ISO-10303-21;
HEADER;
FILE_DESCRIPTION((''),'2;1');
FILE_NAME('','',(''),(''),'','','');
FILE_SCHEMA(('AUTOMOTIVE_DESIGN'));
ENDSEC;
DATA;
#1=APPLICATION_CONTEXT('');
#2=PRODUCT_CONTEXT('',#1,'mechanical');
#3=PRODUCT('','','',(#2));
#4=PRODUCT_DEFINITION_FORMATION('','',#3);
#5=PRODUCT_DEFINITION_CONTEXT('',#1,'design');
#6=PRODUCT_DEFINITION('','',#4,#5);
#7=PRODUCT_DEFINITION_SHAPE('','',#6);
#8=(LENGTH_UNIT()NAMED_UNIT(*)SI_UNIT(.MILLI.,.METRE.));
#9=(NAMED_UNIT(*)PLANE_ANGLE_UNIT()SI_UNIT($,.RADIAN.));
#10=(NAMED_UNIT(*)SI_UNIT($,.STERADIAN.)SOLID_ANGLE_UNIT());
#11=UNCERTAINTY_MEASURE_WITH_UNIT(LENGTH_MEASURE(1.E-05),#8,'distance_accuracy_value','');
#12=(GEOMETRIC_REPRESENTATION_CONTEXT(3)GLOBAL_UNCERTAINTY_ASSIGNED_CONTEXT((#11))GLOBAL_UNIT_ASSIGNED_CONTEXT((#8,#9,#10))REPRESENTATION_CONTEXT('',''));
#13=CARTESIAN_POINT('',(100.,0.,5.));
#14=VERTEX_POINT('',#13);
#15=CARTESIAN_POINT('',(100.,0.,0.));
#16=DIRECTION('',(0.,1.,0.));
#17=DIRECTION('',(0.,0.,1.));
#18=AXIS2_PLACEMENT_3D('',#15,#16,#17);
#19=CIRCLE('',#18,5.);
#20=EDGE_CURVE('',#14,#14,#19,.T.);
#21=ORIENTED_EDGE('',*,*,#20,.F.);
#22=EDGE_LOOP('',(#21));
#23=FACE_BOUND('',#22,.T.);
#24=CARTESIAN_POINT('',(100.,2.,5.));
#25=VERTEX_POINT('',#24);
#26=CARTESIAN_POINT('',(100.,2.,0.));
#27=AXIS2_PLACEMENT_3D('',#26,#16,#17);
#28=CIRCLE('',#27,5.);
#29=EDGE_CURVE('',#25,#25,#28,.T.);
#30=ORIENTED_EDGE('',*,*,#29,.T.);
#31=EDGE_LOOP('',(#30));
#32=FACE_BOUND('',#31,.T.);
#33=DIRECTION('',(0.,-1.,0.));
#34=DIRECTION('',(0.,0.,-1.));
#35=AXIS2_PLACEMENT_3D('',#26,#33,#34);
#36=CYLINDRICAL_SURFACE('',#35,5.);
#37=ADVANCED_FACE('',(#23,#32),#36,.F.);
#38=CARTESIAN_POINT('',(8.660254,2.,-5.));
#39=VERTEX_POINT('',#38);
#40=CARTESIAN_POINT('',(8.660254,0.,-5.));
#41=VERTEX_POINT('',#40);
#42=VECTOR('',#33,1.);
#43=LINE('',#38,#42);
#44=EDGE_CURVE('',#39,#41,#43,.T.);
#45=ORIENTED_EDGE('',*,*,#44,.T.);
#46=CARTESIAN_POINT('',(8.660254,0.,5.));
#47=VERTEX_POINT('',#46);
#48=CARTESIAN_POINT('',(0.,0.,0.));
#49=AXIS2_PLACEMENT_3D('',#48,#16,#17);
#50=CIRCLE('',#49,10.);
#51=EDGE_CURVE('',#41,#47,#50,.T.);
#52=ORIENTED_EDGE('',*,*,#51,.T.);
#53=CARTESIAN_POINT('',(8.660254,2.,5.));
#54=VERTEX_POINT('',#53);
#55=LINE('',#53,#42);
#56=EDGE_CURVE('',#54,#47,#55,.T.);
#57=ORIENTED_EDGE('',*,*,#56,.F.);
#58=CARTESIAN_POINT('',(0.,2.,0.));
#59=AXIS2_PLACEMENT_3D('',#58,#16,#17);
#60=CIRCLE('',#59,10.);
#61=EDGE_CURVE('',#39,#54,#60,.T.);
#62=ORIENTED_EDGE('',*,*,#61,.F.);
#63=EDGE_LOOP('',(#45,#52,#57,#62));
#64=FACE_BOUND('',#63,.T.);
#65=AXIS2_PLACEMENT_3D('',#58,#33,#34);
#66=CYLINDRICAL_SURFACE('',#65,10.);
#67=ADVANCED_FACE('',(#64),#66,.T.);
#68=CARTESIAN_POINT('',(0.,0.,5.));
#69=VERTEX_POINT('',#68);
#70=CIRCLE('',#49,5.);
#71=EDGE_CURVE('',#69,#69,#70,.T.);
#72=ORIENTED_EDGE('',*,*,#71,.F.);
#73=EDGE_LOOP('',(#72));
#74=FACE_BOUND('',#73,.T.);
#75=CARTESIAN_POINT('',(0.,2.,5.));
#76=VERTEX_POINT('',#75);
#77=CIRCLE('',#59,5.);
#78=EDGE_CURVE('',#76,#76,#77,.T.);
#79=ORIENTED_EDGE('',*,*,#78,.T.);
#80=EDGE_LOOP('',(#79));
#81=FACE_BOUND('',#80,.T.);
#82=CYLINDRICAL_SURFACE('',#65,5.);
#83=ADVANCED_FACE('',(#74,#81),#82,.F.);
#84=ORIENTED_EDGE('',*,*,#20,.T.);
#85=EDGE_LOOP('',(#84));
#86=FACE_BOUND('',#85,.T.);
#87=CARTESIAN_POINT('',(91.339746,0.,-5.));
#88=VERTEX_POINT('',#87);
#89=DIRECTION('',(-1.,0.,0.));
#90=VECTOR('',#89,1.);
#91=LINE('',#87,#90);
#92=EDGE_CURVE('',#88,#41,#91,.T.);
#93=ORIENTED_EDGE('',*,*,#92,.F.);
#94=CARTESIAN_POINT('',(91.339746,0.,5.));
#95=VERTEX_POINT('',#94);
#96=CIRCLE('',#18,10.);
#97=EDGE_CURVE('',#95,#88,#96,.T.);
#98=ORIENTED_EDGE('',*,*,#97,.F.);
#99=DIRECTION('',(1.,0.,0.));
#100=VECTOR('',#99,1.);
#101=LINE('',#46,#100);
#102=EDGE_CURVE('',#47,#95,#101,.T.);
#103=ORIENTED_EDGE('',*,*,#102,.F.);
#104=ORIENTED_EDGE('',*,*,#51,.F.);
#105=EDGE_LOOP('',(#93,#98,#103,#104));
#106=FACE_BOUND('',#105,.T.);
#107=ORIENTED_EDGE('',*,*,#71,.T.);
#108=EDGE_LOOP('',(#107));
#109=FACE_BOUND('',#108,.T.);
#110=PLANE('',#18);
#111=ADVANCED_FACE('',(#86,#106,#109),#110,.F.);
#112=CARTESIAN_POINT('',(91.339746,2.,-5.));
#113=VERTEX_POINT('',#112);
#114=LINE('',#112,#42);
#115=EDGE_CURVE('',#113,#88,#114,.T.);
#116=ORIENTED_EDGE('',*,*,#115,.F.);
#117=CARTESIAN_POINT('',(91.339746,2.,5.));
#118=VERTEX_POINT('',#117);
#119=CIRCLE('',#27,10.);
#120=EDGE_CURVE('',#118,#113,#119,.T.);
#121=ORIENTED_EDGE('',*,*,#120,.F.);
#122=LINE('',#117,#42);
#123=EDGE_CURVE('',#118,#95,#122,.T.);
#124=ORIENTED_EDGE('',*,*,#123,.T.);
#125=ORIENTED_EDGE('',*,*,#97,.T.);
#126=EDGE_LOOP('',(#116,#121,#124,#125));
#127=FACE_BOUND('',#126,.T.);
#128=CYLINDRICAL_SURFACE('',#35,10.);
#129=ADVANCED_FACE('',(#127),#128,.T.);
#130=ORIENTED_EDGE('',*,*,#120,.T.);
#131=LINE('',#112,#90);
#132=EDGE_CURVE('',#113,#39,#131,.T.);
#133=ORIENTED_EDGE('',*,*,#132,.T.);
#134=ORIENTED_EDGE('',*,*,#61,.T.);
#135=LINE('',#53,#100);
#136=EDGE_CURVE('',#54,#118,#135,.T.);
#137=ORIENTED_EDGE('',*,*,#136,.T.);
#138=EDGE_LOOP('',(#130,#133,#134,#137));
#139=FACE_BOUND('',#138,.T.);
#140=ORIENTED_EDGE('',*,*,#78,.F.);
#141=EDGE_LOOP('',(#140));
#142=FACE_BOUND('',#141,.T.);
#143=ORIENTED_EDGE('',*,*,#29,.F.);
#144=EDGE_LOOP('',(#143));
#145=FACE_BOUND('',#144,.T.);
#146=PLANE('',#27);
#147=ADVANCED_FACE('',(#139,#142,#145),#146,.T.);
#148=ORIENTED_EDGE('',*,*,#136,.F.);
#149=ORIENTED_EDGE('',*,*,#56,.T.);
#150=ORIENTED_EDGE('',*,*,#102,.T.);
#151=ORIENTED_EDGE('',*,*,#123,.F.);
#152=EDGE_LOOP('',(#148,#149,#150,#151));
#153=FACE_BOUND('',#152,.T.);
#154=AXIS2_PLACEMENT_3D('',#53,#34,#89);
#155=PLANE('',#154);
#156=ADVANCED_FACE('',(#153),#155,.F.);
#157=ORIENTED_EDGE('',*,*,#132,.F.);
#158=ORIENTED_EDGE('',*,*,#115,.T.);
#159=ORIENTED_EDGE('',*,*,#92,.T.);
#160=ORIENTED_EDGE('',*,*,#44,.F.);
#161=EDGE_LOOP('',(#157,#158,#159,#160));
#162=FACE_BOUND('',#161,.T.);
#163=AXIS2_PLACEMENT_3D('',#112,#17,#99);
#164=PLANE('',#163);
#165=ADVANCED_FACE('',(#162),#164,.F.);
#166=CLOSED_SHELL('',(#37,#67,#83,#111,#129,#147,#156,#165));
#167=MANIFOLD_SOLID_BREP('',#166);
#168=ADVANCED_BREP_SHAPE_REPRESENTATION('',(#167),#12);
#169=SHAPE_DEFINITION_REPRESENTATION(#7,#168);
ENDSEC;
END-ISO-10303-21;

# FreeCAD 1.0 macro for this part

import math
import FreeCAD as App
import Part
import Sketcher
from FreeCAD import Vector

doc = App.newDocument("Part")
body = doc.addObject("PartDesign::Body", "Body")

sketch1 = doc.addObject("Sketcher::SketchObject", "Sketch")
body.addObject(sketch1)
sketch1.AttachmentSupport = (doc.XZ_Plane, [""])
sketch1.MapMode = "FlatFace"
sketch1.addGeometry(Part.LineSegment(Vector(9, 5, 0), Vector(91, 5, 0)), False)
sketch1.addGeometry(Part.ArcOfCircle(Part.Circle(Vector(100, 0, 0), Vector(0, 0, 1), 10), math.radians(-150), math.radians(150)), False)
sketch1.addGeometry(Part.LineSegment(Vector(91, -5, 0), Vector(9, -5, 0)), False)
sketch1.addGeometry(Part.ArcOfCircle(Part.Circle(Vector(0, 0, 0), Vector(0, 0, 1), 10), math.radians(30), math.radians(330)), False)
sketch1.addGeometry(Part.Circle(Vector(0, 0, 0), Vector(0, 0, 1), 5), False)
sketch1.addGeometry(Part.Circle(Vector(100, 0, 0), Vector(0, 0, 1), 5), False)
sketch1.addConstraint(Sketcher.Constraint("Coincident", 0, 2, 1, 2))
sketch1.addConstraint(Sketcher.Constraint("Coincident", 1, 1, 2, 1))
sketch1.addConstraint(Sketcher.Constraint("Coincident", 2, 2, 3, 2))
sketch1.addConstraint(Sketcher.Constraint("Coincident", 3, 1, 0, 1))
sketch1.addConstraint(Sketcher.Constraint("Horizontal", 0))
sketch1.addConstraint(Sketcher.Constraint("Horizontal", 2))
sketch1.addConstraint(Sketcher.Constraint("Coincident", 3, 3, -1, 1))
sketch1.addConstraint(Sketcher.Constraint("Coincident", 4, 3, -1, 1))
sketch1.addConstraint(Sketcher.Constraint("Coincident", 5, 3, 1, 3))
sketch1.addConstraint(Sketcher.Constraint("Equal", 1, 3))
sketch1.addConstraint(Sketcher.Constraint("Equal", 4, 5))
sketch1.addConstraint(Sketcher.Constraint("Symmetric", 0, 2, 1, 1, -1))
sketch1.addConstraint(Sketcher.Constraint("Diameter", 4, 10.0))
sketch1.addConstraint(Sketcher.Constraint("Radius", 1, 10.0))
sketch1.addConstraint(Sketcher.Constraint("DistanceX", -1, 1, 1, 3, 100.0))
sketch1.addConstraint(Sketcher.Constraint("DistanceY", -1, 1, 0, 2, 5.0))
pad1 = doc.addObject("PartDesign::Pad", "Pad")
body.addObject(pad1)
pad1.Profile = sketch1
pad1.Length = 2
pad1.Reversed = True

doc.recompute()
